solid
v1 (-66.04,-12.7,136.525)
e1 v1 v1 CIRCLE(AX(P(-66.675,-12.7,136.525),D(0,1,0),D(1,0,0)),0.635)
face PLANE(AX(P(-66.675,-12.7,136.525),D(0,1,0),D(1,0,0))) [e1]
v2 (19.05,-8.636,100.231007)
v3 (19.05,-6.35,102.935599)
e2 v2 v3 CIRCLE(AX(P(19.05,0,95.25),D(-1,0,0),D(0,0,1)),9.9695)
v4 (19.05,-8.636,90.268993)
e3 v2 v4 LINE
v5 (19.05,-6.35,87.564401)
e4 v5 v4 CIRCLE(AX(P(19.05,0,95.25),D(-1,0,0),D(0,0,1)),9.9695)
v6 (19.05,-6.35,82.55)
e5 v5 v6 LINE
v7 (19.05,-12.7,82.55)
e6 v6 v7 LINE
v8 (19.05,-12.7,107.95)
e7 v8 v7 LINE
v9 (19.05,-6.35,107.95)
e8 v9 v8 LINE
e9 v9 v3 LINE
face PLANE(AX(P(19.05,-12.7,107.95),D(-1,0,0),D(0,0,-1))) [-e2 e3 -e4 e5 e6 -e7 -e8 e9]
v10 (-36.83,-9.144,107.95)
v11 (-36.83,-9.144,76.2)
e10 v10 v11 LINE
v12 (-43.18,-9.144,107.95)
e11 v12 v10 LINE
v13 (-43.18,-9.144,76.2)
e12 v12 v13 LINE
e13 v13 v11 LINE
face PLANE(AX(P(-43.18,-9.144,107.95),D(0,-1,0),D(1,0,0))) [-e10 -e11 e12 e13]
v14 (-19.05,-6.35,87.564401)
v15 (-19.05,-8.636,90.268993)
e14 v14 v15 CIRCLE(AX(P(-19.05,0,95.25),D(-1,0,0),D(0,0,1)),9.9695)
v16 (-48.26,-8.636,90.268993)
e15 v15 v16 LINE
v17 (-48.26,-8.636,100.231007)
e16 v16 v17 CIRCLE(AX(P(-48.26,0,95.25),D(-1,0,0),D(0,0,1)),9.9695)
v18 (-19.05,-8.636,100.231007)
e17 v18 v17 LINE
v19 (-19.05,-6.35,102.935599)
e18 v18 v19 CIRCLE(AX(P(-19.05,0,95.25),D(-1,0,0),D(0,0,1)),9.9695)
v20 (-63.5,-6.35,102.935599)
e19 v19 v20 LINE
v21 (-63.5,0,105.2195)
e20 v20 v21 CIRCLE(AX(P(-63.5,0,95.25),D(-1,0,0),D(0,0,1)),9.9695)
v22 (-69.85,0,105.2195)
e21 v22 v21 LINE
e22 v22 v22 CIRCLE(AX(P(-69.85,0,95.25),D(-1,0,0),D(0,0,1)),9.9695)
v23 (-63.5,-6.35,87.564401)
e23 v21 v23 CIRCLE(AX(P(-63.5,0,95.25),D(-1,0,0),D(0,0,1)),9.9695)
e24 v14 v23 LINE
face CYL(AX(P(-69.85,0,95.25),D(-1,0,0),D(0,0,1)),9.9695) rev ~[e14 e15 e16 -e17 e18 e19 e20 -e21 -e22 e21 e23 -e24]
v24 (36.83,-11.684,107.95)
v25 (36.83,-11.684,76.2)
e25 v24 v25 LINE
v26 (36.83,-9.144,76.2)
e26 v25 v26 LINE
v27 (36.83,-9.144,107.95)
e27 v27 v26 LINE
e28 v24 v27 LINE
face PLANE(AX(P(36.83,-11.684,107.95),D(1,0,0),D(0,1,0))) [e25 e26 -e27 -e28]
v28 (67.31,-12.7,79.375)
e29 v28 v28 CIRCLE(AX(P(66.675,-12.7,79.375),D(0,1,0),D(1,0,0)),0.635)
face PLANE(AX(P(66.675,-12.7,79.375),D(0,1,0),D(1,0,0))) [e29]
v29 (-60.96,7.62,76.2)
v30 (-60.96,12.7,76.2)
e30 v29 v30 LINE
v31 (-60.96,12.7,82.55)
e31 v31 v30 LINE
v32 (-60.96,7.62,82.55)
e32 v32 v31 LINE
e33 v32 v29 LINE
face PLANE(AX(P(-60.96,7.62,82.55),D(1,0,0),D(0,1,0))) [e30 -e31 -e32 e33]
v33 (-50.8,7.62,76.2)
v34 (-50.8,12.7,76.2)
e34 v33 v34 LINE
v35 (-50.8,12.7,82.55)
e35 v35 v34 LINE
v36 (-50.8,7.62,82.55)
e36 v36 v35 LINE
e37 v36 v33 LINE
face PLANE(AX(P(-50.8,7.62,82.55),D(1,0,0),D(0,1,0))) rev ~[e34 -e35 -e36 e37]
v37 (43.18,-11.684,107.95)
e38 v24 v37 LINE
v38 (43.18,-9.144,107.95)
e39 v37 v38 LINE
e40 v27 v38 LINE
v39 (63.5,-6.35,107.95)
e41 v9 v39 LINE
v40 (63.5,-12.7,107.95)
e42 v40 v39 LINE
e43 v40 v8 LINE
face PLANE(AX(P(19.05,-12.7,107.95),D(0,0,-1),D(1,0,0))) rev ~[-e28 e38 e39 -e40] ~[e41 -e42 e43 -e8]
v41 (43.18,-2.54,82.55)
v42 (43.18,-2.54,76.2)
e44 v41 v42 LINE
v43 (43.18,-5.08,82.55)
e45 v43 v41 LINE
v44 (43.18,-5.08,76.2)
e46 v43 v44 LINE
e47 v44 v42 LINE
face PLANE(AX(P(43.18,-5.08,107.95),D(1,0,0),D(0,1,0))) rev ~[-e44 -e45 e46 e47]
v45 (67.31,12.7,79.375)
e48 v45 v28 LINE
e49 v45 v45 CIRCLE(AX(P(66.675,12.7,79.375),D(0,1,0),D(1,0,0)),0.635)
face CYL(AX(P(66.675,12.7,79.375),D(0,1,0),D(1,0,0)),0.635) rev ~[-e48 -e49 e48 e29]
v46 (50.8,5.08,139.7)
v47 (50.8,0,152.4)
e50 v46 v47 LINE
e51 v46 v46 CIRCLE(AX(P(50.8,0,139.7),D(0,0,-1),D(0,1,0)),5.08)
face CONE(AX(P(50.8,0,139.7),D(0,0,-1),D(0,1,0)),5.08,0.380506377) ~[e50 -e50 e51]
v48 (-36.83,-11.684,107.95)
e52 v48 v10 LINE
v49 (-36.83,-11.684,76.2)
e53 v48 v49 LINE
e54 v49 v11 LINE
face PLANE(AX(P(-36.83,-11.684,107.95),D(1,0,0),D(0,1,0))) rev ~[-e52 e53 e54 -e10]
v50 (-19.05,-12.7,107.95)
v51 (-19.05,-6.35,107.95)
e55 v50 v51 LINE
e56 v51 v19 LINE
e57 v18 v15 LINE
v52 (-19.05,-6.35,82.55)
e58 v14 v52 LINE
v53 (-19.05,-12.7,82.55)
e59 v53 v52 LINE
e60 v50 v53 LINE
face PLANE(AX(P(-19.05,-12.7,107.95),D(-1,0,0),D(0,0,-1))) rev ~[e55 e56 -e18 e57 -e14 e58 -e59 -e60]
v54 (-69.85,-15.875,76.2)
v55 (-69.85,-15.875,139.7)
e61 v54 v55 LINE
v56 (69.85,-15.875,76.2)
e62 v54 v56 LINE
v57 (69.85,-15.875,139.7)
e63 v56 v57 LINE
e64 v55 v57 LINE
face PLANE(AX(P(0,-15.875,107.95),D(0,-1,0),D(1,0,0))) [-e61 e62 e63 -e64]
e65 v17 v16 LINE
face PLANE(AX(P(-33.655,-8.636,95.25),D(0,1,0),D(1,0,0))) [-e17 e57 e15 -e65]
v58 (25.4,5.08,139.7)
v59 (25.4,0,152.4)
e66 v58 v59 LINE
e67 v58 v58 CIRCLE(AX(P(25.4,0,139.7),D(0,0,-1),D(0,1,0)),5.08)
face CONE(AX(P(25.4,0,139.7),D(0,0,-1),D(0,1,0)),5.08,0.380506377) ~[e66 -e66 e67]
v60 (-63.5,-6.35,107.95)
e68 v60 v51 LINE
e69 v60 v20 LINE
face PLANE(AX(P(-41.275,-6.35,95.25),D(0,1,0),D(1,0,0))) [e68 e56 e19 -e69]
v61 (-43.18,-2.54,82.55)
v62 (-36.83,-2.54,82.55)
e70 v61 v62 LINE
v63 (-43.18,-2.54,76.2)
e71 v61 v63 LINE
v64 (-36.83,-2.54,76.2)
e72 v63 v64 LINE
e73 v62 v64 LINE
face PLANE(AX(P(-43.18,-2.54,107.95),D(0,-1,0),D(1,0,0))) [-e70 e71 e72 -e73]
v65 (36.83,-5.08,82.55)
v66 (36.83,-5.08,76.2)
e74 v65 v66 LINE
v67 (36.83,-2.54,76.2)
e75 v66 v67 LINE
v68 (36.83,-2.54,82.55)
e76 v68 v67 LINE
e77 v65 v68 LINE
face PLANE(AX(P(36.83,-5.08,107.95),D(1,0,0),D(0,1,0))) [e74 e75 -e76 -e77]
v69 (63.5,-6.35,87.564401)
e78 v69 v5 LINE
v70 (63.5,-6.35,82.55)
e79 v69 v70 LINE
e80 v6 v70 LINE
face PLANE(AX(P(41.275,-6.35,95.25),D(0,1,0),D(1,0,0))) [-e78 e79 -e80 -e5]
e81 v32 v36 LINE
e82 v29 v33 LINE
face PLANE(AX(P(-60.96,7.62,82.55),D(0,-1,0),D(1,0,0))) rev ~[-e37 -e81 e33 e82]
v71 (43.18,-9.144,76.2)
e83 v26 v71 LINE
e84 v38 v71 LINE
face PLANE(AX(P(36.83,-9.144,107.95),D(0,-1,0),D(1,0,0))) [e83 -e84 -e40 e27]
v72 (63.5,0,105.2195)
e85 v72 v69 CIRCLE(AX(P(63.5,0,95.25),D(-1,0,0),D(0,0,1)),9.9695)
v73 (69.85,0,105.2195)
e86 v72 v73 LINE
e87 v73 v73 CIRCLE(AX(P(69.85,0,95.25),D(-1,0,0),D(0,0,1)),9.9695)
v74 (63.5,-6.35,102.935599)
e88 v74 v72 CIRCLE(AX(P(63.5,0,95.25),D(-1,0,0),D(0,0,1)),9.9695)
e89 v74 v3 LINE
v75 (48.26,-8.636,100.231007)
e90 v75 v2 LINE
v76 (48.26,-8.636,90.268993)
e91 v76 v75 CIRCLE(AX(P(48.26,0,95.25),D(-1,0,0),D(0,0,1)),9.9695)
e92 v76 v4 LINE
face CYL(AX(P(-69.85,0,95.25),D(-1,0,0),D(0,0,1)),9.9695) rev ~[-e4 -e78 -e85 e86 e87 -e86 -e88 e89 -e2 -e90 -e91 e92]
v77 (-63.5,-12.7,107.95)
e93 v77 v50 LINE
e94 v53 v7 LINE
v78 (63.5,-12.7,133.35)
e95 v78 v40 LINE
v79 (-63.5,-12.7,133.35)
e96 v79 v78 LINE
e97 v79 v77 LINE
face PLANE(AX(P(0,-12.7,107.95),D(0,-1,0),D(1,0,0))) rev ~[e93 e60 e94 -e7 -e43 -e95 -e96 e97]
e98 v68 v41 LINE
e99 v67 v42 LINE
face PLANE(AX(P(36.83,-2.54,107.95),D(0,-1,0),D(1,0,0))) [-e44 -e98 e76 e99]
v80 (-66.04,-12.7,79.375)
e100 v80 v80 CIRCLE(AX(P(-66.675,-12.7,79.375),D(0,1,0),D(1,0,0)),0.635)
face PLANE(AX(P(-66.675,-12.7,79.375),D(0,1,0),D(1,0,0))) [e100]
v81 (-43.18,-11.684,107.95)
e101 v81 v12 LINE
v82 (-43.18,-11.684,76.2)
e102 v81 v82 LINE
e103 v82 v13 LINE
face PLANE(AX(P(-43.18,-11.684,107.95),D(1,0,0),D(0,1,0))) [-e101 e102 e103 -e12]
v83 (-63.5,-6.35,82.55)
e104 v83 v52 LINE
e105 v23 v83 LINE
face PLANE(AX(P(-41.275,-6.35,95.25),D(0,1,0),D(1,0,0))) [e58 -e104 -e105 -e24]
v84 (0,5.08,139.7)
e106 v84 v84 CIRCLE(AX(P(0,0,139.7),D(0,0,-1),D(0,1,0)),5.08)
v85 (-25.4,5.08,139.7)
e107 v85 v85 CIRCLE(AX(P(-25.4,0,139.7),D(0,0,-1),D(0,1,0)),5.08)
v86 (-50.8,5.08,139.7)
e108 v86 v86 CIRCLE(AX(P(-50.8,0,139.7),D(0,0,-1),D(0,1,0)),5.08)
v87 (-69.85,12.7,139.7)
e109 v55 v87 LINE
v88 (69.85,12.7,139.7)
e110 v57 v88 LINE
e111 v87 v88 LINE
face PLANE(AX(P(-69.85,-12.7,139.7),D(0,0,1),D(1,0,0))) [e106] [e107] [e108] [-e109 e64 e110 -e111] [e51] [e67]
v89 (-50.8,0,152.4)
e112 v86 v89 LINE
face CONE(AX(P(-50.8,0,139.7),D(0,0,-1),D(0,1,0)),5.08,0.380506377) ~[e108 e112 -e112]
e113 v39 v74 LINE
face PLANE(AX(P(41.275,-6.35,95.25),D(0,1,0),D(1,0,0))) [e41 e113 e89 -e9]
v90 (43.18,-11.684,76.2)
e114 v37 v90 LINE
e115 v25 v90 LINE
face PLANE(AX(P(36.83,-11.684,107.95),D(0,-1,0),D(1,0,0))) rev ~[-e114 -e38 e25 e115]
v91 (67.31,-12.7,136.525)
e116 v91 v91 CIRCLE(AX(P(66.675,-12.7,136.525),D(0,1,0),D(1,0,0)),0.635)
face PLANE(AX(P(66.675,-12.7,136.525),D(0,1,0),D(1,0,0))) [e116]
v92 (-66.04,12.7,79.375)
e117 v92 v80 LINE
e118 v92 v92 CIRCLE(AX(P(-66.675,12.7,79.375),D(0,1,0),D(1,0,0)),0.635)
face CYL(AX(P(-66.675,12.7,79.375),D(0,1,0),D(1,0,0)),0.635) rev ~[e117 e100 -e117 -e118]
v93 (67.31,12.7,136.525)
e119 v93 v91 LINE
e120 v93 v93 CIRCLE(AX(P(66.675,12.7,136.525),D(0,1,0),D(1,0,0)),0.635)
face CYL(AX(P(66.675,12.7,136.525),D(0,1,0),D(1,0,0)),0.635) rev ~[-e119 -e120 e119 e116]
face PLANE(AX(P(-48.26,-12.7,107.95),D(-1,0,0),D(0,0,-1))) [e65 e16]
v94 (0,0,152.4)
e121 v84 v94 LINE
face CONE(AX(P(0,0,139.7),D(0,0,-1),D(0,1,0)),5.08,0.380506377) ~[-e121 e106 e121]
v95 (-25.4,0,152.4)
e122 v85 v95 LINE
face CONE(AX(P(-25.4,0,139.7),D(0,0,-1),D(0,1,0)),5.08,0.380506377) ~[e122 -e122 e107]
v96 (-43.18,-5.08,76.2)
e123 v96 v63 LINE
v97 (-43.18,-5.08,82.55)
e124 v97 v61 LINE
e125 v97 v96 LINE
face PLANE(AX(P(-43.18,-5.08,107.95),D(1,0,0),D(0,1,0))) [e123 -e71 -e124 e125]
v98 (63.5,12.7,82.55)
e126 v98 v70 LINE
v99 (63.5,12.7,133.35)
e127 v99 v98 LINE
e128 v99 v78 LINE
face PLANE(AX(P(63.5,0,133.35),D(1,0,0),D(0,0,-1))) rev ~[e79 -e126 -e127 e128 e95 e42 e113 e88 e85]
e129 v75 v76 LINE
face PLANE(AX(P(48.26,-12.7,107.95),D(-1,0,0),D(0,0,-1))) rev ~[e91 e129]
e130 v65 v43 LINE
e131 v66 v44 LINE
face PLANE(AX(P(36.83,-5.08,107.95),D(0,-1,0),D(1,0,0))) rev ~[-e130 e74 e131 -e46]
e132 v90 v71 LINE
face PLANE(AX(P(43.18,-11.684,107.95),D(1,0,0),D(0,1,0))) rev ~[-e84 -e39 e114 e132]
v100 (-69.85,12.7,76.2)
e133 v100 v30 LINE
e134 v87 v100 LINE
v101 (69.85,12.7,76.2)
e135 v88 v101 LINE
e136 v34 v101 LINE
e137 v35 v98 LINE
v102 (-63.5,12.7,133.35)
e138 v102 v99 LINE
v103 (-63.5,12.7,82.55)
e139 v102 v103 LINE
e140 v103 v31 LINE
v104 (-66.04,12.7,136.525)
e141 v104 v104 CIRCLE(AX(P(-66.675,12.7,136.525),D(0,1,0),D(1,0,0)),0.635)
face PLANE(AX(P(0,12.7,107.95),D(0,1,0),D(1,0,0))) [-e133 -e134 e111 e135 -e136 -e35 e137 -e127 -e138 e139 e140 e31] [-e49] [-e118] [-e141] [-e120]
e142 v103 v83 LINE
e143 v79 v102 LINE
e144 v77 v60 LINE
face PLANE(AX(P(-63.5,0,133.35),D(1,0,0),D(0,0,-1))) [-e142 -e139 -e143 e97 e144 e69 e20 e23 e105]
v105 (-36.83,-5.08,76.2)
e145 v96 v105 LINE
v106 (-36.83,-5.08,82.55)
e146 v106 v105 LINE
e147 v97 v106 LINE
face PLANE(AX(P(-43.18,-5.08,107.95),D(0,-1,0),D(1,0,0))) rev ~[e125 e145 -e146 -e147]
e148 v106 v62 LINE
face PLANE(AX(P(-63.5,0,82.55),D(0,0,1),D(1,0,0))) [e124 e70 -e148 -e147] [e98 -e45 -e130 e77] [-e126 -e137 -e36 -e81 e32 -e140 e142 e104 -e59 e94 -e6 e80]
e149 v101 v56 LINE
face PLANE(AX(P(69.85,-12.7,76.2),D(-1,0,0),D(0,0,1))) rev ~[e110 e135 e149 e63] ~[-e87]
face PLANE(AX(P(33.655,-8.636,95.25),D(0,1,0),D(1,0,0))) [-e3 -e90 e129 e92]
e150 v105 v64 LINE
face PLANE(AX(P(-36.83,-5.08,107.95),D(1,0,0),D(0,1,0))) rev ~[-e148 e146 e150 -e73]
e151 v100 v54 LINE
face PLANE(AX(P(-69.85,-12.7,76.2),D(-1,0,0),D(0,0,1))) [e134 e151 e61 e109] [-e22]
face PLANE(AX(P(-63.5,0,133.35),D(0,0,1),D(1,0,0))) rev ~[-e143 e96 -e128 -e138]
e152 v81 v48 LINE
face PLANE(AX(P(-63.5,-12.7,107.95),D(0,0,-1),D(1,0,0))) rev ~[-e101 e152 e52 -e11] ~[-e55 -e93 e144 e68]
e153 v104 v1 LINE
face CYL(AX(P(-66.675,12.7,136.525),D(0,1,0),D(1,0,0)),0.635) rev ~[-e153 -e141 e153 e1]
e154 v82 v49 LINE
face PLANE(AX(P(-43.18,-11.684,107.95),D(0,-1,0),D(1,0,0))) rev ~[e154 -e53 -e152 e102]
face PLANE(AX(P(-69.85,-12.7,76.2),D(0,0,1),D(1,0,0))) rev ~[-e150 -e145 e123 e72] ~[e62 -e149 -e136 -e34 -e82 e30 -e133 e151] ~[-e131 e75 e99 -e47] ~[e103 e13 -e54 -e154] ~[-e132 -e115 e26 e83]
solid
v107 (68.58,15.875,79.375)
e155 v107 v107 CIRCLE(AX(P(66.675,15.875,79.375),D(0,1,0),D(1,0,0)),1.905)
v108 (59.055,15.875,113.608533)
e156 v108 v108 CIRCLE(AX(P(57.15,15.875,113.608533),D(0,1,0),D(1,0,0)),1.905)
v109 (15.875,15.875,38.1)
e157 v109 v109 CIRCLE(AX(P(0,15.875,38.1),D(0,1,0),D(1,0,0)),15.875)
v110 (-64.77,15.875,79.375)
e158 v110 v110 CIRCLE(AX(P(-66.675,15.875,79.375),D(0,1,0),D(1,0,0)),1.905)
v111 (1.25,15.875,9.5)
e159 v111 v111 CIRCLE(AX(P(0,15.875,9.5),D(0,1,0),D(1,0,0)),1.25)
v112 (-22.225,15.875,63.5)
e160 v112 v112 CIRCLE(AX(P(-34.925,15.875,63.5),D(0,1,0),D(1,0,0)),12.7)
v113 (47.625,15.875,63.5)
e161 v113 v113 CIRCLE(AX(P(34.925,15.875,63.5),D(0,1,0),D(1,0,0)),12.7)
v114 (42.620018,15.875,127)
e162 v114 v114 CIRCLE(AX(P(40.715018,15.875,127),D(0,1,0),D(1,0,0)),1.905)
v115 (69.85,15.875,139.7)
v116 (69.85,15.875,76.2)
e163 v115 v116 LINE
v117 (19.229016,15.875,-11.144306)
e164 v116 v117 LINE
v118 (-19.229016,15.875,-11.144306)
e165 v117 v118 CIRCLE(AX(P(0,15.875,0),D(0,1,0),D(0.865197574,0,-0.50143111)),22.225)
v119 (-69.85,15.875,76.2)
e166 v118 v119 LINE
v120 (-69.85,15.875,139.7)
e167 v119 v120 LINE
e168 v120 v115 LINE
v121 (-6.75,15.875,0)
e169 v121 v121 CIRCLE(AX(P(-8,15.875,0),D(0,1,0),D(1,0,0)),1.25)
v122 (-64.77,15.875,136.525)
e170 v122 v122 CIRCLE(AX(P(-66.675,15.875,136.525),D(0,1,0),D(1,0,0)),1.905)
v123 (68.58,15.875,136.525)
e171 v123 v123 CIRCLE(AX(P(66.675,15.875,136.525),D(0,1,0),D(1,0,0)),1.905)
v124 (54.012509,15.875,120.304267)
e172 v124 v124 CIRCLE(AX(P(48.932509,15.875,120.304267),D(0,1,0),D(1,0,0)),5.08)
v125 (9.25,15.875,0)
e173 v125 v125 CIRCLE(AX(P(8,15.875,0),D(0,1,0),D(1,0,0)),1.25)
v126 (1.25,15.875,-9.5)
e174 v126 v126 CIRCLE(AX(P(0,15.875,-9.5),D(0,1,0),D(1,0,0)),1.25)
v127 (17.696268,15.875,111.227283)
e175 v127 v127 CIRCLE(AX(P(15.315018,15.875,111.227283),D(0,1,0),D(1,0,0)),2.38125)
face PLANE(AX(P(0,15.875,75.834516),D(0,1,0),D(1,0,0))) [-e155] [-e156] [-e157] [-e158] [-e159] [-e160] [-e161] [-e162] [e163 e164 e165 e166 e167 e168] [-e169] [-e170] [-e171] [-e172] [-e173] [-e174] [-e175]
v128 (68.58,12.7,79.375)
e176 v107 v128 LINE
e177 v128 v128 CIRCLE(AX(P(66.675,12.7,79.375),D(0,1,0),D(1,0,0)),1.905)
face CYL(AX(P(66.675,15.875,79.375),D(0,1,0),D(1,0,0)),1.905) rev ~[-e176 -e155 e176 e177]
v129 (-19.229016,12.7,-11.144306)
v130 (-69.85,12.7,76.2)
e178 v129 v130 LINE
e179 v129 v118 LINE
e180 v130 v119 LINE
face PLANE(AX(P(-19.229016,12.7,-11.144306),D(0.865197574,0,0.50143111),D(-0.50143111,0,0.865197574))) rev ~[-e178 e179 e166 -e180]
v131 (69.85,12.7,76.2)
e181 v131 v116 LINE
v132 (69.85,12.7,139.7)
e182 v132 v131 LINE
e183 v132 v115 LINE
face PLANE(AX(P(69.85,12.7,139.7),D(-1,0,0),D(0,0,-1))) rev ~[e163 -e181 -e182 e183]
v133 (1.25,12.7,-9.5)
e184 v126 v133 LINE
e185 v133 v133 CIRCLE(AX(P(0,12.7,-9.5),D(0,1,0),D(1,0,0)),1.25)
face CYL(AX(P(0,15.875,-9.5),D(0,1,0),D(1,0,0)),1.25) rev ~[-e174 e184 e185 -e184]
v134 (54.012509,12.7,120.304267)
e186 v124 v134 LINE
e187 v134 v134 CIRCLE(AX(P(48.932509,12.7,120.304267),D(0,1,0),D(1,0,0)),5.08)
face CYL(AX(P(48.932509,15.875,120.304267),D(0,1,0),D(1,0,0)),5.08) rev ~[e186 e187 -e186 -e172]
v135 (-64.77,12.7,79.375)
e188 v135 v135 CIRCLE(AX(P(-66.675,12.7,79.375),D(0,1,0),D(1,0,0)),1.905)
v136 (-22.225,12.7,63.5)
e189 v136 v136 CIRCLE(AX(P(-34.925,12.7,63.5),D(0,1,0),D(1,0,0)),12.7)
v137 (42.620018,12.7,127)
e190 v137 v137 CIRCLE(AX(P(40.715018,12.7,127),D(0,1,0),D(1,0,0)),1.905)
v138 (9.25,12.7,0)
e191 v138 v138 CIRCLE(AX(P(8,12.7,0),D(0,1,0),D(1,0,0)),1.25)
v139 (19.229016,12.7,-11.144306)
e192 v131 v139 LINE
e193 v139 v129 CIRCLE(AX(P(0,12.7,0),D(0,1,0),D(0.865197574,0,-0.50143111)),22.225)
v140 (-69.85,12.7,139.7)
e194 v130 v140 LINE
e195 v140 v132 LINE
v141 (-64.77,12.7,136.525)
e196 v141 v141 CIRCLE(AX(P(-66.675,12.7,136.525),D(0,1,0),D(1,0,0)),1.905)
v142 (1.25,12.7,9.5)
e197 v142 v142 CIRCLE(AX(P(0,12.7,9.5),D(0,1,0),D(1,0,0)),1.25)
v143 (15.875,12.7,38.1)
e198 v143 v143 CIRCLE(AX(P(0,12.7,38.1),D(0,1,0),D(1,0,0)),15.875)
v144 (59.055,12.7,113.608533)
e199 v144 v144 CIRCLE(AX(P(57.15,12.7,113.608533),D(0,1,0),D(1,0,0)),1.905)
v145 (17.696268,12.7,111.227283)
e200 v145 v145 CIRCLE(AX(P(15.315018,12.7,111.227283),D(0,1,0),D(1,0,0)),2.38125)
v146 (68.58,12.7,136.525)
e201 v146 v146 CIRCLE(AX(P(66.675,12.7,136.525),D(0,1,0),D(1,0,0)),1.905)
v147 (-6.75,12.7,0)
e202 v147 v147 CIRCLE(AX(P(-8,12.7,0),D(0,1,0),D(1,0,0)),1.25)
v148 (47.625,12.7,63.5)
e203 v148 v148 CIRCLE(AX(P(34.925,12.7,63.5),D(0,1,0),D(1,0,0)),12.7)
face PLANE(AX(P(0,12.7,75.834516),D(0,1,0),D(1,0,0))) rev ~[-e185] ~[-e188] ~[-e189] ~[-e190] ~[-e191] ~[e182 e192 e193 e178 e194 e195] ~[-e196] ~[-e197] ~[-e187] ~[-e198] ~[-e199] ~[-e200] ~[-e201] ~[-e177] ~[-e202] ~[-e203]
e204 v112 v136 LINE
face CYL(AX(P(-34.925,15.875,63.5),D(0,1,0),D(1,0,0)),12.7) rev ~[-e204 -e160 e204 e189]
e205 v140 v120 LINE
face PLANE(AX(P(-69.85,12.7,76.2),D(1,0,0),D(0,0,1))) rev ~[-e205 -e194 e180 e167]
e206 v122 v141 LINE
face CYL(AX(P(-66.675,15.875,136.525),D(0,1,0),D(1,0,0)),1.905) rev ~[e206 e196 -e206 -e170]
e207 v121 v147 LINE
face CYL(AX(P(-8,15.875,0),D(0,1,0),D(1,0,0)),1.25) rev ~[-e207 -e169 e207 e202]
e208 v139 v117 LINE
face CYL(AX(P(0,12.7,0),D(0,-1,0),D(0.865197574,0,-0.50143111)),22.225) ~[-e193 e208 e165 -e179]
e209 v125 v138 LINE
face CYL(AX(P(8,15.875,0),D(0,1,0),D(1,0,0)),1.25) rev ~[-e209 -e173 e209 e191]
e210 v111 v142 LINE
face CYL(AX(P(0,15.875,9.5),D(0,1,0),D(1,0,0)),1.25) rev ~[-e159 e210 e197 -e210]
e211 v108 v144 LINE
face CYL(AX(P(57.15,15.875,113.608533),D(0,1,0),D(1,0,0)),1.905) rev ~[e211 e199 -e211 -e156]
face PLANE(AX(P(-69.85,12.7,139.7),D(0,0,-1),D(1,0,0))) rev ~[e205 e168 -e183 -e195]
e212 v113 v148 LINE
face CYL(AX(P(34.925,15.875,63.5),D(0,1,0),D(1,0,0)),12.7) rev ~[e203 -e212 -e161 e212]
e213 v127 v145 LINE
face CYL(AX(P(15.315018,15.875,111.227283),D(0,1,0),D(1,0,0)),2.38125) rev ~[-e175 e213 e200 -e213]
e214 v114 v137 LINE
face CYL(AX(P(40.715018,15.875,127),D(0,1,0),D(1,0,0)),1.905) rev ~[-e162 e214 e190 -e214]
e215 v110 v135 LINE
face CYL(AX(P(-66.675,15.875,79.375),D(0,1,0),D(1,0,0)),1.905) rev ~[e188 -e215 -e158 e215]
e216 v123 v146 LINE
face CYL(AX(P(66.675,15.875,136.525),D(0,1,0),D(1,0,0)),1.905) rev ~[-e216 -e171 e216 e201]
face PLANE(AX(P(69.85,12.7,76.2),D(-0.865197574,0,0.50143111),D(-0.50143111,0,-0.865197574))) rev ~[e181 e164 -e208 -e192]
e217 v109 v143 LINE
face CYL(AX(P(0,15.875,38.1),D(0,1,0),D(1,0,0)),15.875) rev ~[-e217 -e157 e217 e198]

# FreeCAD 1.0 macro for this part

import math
import FreeCAD as App
import Part
import Sketcher
from FreeCAD import Vector
Q = App.Units.Quantity

doc = App.newDocument("Part")
params = doc.addObject("Spreadsheet::Sheet", "Params")
for row, (alias, value) in enumerate([
    ("sketch1_width", "5 in"),
    ("sketch1_height", "2 in"),
    ("sketch1_width2", "5.5 in"),
    ("sketch1_height2", "2.5 in"),
    ("pad1_length", "0.5 in"),
    ("pad1_length2", "0.5 in"),
    ("sketch2_width", "5.5 in"),
    ("sketch2_height", "2.5 in"),
    ("pad2_length", "0.125 in"),
    ("sketch3_height", "1 in"),
    ("sketch3_width", "1.75 in"),
    ("pad3_length", "0.25 in"),
    ("sketch4_diameter", "0.785 in"),
    ("sketch5_width", "0.2 in"),
    ("sketch5_height", "0.5 in"),
    ("revolution_angle", "360 deg"),
    ("linearpattern_pitch", "1 in"),
    ("linearpattern2_pitch", "1 in"),
    ("sketch6_height", "1 in"),
    ("sketch6_width", "1.15 in"),
    ("pad4_length", "0.16 in"),
    ("sketch7_height", "0.1 in"),
    ("sketch7_width", "0.25 in"),
    ("pocket2_length", "1.25 in"),
    ("sketch8_width", "0.4 in"),
    ("sketch8_height", "0.2 in"),
    ("pocket3_length", "0.25 in"),
    ("sketch9_diameter", "0.05 in"),
    ("pocket4_length", "1 in"),
    ("sketch10_width", "5.5 in"),
    ("sketch10_height", "2.5 in"),
    ("sketch10_radius", "0.875 in"),
    ("pad5_length", "0.125 in"),
    ("sketch11_diameter", "0.15 in"),
    ("pocket5_length", "0.125 in"),
    ("sketch12_diameter", "0.4 in"),
    ("sketch12_diameter2", "0.15 in"),
    ("sketch12_diameter3", "0.1875 in"),
    ("pocket6_length", "0.125 in"),
    ("pocket7_length", "0.125 in"),
    ("sketch14_diameter", "1 in"),
    ("sketch14_diameter2", "1.25 in"),
], start=1):
    params.set(f"A{row}", alias)
    params.set(f"B{row}", "=" + value)
    params.setAlias(f"B{row}", alias)

body = doc.addObject("PartDesign::Body", "Body")

# Sketch on XZ plane
sketch1 = body.newObject("Sketcher::SketchObject", "Sketch")
sketch1.AttachmentSupport = (doc.getObject("XZ_Plane"), [""])
sketch1.MapMode = "FlatFace"
sketch1.addGeometry([
    Part.LineSegment(Vector(-70, 76, 0), Vector(-70, 140, 0)),  # 0
    Part.LineSegment(Vector(-70, 140, 0), Vector(70, 140, 0)),  # 1
    Part.LineSegment(Vector(70, 140, 0), Vector(70, 76, 0)),  # 2
    Part.LineSegment(Vector(70, 76, 0), Vector(-70, 76, 0)),  # 3
    Part.LineSegment(Vector(64, 133, 0), Vector(-64, 133, 0)),  # 4
    Part.LineSegment(Vector(-64, 133, 0), Vector(-64, 83, 0)),  # 5
    Part.LineSegment(Vector(-64, 83, 0), Vector(64, 83, 0)),  # 6
    Part.LineSegment(Vector(64, 83, 0), Vector(64, 133, 0)),  # 7
], False)
sketch1.addConstraint([
    Sketcher.Constraint("Coincident", 0, 2, 1, 1),
    Sketcher.Constraint("Coincident", 1, 2, 2, 1),
    Sketcher.Constraint("Coincident", 2, 2, 3, 1),
    Sketcher.Constraint("Coincident", 3, 2, 0, 1),
    Sketcher.Constraint("Coincident", 4, 2, 5, 1),
    Sketcher.Constraint("Coincident", 5, 2, 6, 1),
    Sketcher.Constraint("Coincident", 6, 2, 7, 1),
    Sketcher.Constraint("Coincident", 7, 2, 4, 1),
    Sketcher.Constraint("Vertical", 0),
    Sketcher.Constraint("Horizontal", 1),
    Sketcher.Constraint("Vertical", 2),
    Sketcher.Constraint("Horizontal", 3),
    Sketcher.Constraint("Horizontal", 4),
    Sketcher.Constraint("Vertical", 5),
    Sketcher.Constraint("Horizontal", 6),
    Sketcher.Constraint("Vertical", 7),
    Sketcher.Constraint("DistanceX", 4, 2, 4, 1, Q("5 in")),
    Sketcher.Constraint("DistanceY", 5, 2, 5, 1, Q("2 in")),
    Sketcher.Constraint("DistanceX", 1, 1, 1, 2, Q("5.5 in")),
    Sketcher.Constraint("DistanceY", 0, 1, 0, 2, Q("2.5 in")),
    Sketcher.Constraint("DistanceY", -1, 1, 2, 2, Q("3 in")),
    Sketcher.Constraint("DistanceX", 4, 2, -1, 1, Q("2.5 in")),
    Sketcher.Constraint("DistanceX", 0, 2, -1, 1, Q("2.75 in")),
    Sketcher.Constraint("DistanceY", -1, 1, 4, 2, Q("5.25 in")),
])
sketch1.setExpression("Constraints[16]", "Params.sketch1_width")
sketch1.setExpression("Constraints[17]", "Params.sketch1_height")
sketch1.setExpression("Constraints[18]", "Params.sketch1_width2")
sketch1.setExpression("Constraints[19]", "Params.sketch1_height2")
pad1 = body.newObject("PartDesign::Pad", "Pad")
pad1.Profile = sketch1
pad1.Type = "TwoLengths"
pad1.setExpression("Length", "Params.pad1_length")
pad1.setExpression("Length2", "Params.pad1_length2")
pad1.Reversed = True

# Sketch on XZ plane
sketch2 = body.newObject("Sketcher::SketchObject", "Sketch001")
sketch2.AttachmentSupport = (doc.getObject("XZ_Plane"), [""])
sketch2.MapMode = "FlatFace"
sketch2.AttachmentOffset = App.Placement(Vector(0, 0, 0.5 * 25.4), App.Rotation())
sketch2.addGeometry([
    Part.LineSegment(Vector(-70, 140, 0), Vector(-70, 76, 0)),
    Part.LineSegment(Vector(-70, 76, 0), Vector(70, 76, 0)),
    Part.LineSegment(Vector(70, 76, 0), Vector(70, 140, 0)),
    Part.LineSegment(Vector(70, 140, 0), Vector(-70, 140, 0)),
], False)
sketch2.addConstraint([
    Sketcher.Constraint("Coincident", 0, 2, 1, 1),
    Sketcher.Constraint("Coincident", 1, 2, 2, 1),
    Sketcher.Constraint("Coincident", 2, 2, 3, 1),
    Sketcher.Constraint("Coincident", 3, 2, 0, 1),
    Sketcher.Constraint("Vertical", 0),
    Sketcher.Constraint("Horizontal", 1),
    Sketcher.Constraint("Vertical", 2),
    Sketcher.Constraint("Horizontal", 3),
    Sketcher.Constraint("DistanceX", 1, 1, 1, 2, Q("5.5 in")),
    Sketcher.Constraint("DistanceY", 0, 2, 0, 1, Q("2.5 in")),
    Sketcher.Constraint("DistanceY", -1, 1, 0, 2, Q("3 in")),
    Sketcher.Constraint("DistanceX", 0, 2, -1, 1, Q("2.75 in")),
])
sketch2.setExpression("Constraints[8]", "Params.sketch2_width")
sketch2.setExpression("Constraints[9]", "Params.sketch2_height")
pad2 = body.newObject("PartDesign::Pad", "Pad001")
pad2.Profile = sketch2
pad2.setExpression("Length", "Params.pad2_length")

# Sketch on XZ plane
sketch3 = body.newObject("Sketcher::SketchObject", "Sketch002")
sketch3.AttachmentSupport = (doc.getObject("XZ_Plane"), [""])
sketch3.MapMode = "FlatFace"
sketch3.AttachmentOffset = App.Placement(Vector(0, 0, 0.5 * 25.4), App.Rotation())
sketch3.addGeometry([
    Part.LineSegment(Vector(-64, 83, 0), Vector(-64, 108, 0)),  # 0
    Part.LineSegment(Vector(-64, 108, 0), Vector(-19, 108, 0)),  # 1
    Part.LineSegment(Vector(-19, 108, 0), Vector(-19, 83, 0)),  # 2
    Part.LineSegment(Vector(-19, 83, 0), Vector(-64, 83, 0)),  # 3
    Part.LineSegment(Vector(19, 83, 0), Vector(19, 108, 0)),  # 4
    Part.LineSegment(Vector(19, 108, 0), Vector(64, 108, 0)),  # 5
    Part.LineSegment(Vector(64, 108, 0), Vector(64, 83, 0)),  # 6
    Part.LineSegment(Vector(64, 83, 0), Vector(19, 83, 0)),  # 7
], False)
sketch3.addConstraint([
    Sketcher.Constraint("Coincident", 0, 2, 1, 1),
    Sketcher.Constraint("Coincident", 1, 2, 2, 1),
    Sketcher.Constraint("Coincident", 2, 2, 3, 1),
    Sketcher.Constraint("Coincident", 3, 2, 0, 1),
    Sketcher.Constraint("Coincident", 4, 2, 5, 1),
    Sketcher.Constraint("Coincident", 5, 2, 6, 1),
    Sketcher.Constraint("Coincident", 6, 2, 7, 1),
    Sketcher.Constraint("Coincident", 7, 2, 4, 1),
    Sketcher.Constraint("Vertical", 0),
    Sketcher.Constraint("Horizontal", 1),
    Sketcher.Constraint("Vertical", 2),
    Sketcher.Constraint("Horizontal", 3),
    Sketcher.Constraint("Vertical", 4),
    Sketcher.Constraint("Horizontal", 5),
    Sketcher.Constraint("Vertical", 6),
    Sketcher.Constraint("Horizontal", 7),
    Sketcher.Constraint("Symmetric", 1, 2, 4, 2, -2),
    Sketcher.Constraint("Symmetric", 3, 2, 6, 2, -2),
    Sketcher.Constraint("DistanceY", 0, 1, 0, 2, Q("1 in")),
    Sketcher.Constraint("DistanceX", 0, 2, 5, 2, Q("5 in")),
    Sketcher.Constraint("DistanceX", 1, 1, 1, 2, Q("1.75 in")),
    Sketcher.Constraint("DistanceY", -1, 1, 0, 2, Q("4.25 in")),
])
sketch3.setExpression("Constraints[18]", "Params.sketch3_height")
sketch3.setExpression("Constraints[20]", "Params.sketch3_width")
pad3 = body.newObject("PartDesign::Pad", "Pad002")
pad3.Profile = sketch3
pad3.setExpression("Length", "Params.pad3_length")
pad3.Reversed = True

# Sketch on YZ plane
sketch4 = body.newObject("Sketcher::SketchObject", "Sketch003")
sketch4.AttachmentSupport = (doc.getObject("YZ_Plane"), [""])
sketch4.MapMode = "FlatFace"
sketch4.AttachmentOffset = App.Placement(Vector(0, 0, -2.75 * 25.4), App.Rotation())
sketch4.addGeometry(Part.Circle(Vector(0, 95, 0), Vector(0, 0, 1), 10), False)
sketch4.addConstraint([
    Sketcher.Constraint("PointOnObject", 0, 3, -2),
    Sketcher.Constraint("Diameter", 0, Q("0.785 in")),
    Sketcher.Constraint("DistanceY", -1, 1, 0, 3, Q("3.75 in")),
])
sketch4.setExpression("Constraints[1]", "Params.sketch4_diameter")
pocket1 = body.newObject("PartDesign::Pocket", "Pocket")
pocket1.Profile = sketch4
pocket1.Type = "ThroughAll"
pocket1.Reversed = True

# Sketch on YZ plane
sketch5 = body.newObject("Sketcher::SketchObject", "Sketch004")
sketch5.AttachmentSupport = (doc.getObject("YZ_Plane"), [""])
sketch5.MapMode = "FlatFace"
sketch5.addGeometry([
    Part.LineSegment(Vector(0, 140, 0), Vector(5, 140, 0)),
    Part.LineSegment(Vector(5, 140, 0), Vector(0, 152, 0)),
    Part.LineSegment(Vector(0, 152, 0), Vector(0, 140, 0)),
], False)
sketch5.addConstraint([
    Sketcher.Constraint("Coincident", 0, 2, 1, 1),
    Sketcher.Constraint("Coincident", 1, 2, 2, 1),
    Sketcher.Constraint("Coincident", 2, 2, 0, 1),
    Sketcher.Constraint("Horizontal", 0),
    Sketcher.Constraint("Vertical", 2),
    Sketcher.Constraint("PointOnObject", 1, 2, -2),
    Sketcher.Constraint("DistanceX", 0, 1, 0, 2, Q("0.2 in")),
    Sketcher.Constraint("DistanceY", 2, 2, 2, 1, Q("0.5 in")),
    Sketcher.Constraint("DistanceY", -1, 1, 1, 2, Q("6 in")),
])
sketch5.setExpression("Constraints[6]", "Params.sketch5_width")
sketch5.setExpression("Constraints[7]", "Params.sketch5_height")
revolution = body.newObject("PartDesign::Revolution", "Revolution")
revolution.Profile = sketch5
revolution.ReferenceAxis = (sketch5, ["V_Axis"])
revolution.setExpression("Angle", "Params.revolution_angle")
doc.recompute()

linearpattern = body.newObject("PartDesign::LinearPattern", "LinearPattern")
linearpattern.Originals = [revolution]
linearpattern.Direction = (doc.getObject("X_Axis"), [""])
linearpattern.Mode = "offset"
linearpattern.setExpression("Offset", "Params.linearpattern_pitch")
linearpattern.Occurrences = 3
linearpattern.Reversed = True
body.Tip = linearpattern
doc.recompute()

linearpattern2 = body.newObject("PartDesign::LinearPattern", "LinearPattern001")
linearpattern2.Originals = [revolution]
linearpattern2.Direction = (doc.getObject("X_Axis"), [""])
linearpattern2.Mode = "offset"
linearpattern2.setExpression("Offset", "Params.linearpattern2_pitch")
linearpattern2.Occurrences = 3
body.Tip = linearpattern2

# Sketch on XZ plane
sketch6 = body.newObject("Sketcher::SketchObject", "Sketch005")
sketch6.AttachmentSupport = (doc.getObject("XZ_Plane"), [""])
sketch6.MapMode = "FlatFace"
sketch6.AttachmentOffset = App.Placement(Vector(0, 0, 0.5 * 25.4), App.Rotation())
sketch6.addGeometry([
    Part.LineSegment(Vector(-48, 83, 0), Vector(-48, 108, 0)),  # 0
    Part.LineSegment(Vector(-48, 108, 0), Vector(-19, 108, 0)),  # 1
    Part.LineSegment(Vector(-19, 108, 0), Vector(-19, 83, 0)),  # 2
    Part.LineSegment(Vector(-19, 83, 0), Vector(-48, 83, 0)),  # 3
    Part.LineSegment(Vector(19, 83, 0), Vector(19, 108, 0)),  # 4
    Part.LineSegment(Vector(19, 108, 0), Vector(48, 108, 0)),  # 5
    Part.LineSegment(Vector(48, 108, 0), Vector(48, 83, 0)),  # 6
    Part.LineSegment(Vector(48, 83, 0), Vector(19, 83, 0)),  # 7
], False)
sketch6.addConstraint([
    Sketcher.Constraint("Coincident", 0, 2, 1, 1),
    Sketcher.Constraint("Coincident", 1, 2, 2, 1),
    Sketcher.Constraint("Coincident", 2, 2, 3, 1),
    Sketcher.Constraint("Coincident", 3, 2, 0, 1),
    Sketcher.Constraint("Coincident", 4, 2, 5, 1),
    Sketcher.Constraint("Coincident", 5, 2, 6, 1),
    Sketcher.Constraint("Coincident", 6, 2, 7, 1),
    Sketcher.Constraint("Coincident", 7, 2, 4, 1),
    Sketcher.Constraint("Vertical", 0),
    Sketcher.Constraint("Horizontal", 1),
    Sketcher.Constraint("Vertical", 2),
    Sketcher.Constraint("Horizontal", 3),
    Sketcher.Constraint("Vertical", 4),
    Sketcher.Constraint("Horizontal", 5),
    Sketcher.Constraint("Vertical", 6),
    Sketcher.Constraint("Horizontal", 7),
    Sketcher.Constraint("Symmetric", 1, 2, 4, 2, -2),
    Sketcher.Constraint("Symmetric", 3, 2, 6, 2, -2),
    Sketcher.Constraint("DistanceY", 0, 1, 0, 2, Q("1 in")),
    Sketcher.Constraint("DistanceX", 1, 1, 1, 2, Q("1.15 in")),
    Sketcher.Constraint("DistanceX", 0, 2, -1, 1, Q("1.9 in")),
    Sketcher.Constraint("DistanceY", -1, 1, 0, 2, Q("4.25 in")),
])
sketch6.setExpression("Constraints[18]", "Params.sketch6_height")
sketch6.setExpression("Constraints[19]", "Params.sketch6_width")
pad4 = body.newObject("PartDesign::Pad", "Pad003")
pad4.Profile = sketch6
pad4.setExpression("Length", "Params.pad4_length")
pad4.Reversed = True

# Sketch on XY plane
sketch7 = body.newObject("Sketcher::SketchObject", "Sketch006")
sketch7.AttachmentSupport = (doc.getObject("XY_Plane"), [""])
sketch7.MapMode = "FlatFace"
sketch7.AttachmentOffset = App.Placement(Vector(0, 0, 4.25 * 25.4), App.Rotation())
sketch7.addGeometry([
    Part.LineSegment(Vector(-43.2, -9.1, 0), Vector(-43.2, -11.7, 0)),  # 0
    Part.LineSegment(Vector(-43.2, -11.7, 0), Vector(-36.8, -11.7, 0)),  # 1
    Part.LineSegment(Vector(-36.8, -11.7, 0), Vector(-36.8, -9.1, 0)),  # 2
    Part.LineSegment(Vector(-36.8, -9.1, 0), Vector(-43.2, -9.1, 0)),  # 3
    Part.LineSegment(Vector(-43.2, -2.5, 0), Vector(-43.2, -5.1, 0)),  # 4
    Part.LineSegment(Vector(-43.2, -5.1, 0), Vector(-36.8, -5.1, 0)),  # 5
    Part.LineSegment(Vector(-36.8, -5.1, 0), Vector(-36.8, -2.5, 0)),  # 6
    Part.LineSegment(Vector(-36.8, -2.5, 0), Vector(-43.2, -2.5, 0)),  # 7
    Part.LineSegment(Vector(36.8, -9.1, 0), Vector(36.8, -11.7, 0)),  # 8
    Part.LineSegment(Vector(36.8, -11.7, 0), Vector(43.2, -11.7, 0)),  # 9
    Part.LineSegment(Vector(43.2, -11.7, 0), Vector(43.2, -9.1, 0)),  # 10
    Part.LineSegment(Vector(43.2, -9.1, 0), Vector(36.8, -9.1, 0)),  # 11
    Part.LineSegment(Vector(36.8, -2.5, 0), Vector(36.8, -5.1, 0)),  # 12
    Part.LineSegment(Vector(36.8, -5.1, 0), Vector(43.2, -5.1, 0)),  # 13
    Part.LineSegment(Vector(43.2, -5.1, 0), Vector(43.2, -2.5, 0)),  # 14
    Part.LineSegment(Vector(43.2, -2.5, 0), Vector(36.8, -2.5, 0)),  # 15
], False)
sketch7.addConstraint([
    Sketcher.Constraint("Coincident", 0, 2, 1, 1),
    Sketcher.Constraint("Coincident", 1, 2, 2, 1),
    Sketcher.Constraint("Coincident", 2, 2, 3, 1),
    Sketcher.Constraint("Coincident", 3, 2, 0, 1),
    Sketcher.Constraint("Coincident", 4, 2, 5, 1),
    Sketcher.Constraint("Coincident", 5, 2, 6, 1),
    Sketcher.Constraint("Coincident", 6, 2, 7, 1),
    Sketcher.Constraint("Coincident", 7, 2, 4, 1),
    Sketcher.Constraint("Coincident", 8, 2, 9, 1),
    Sketcher.Constraint("Coincident", 9, 2, 10, 1),
    Sketcher.Constraint("Coincident", 10, 2, 11, 1),
    Sketcher.Constraint("Coincident", 11, 2, 8, 1),
    Sketcher.Constraint("Coincident", 12, 2, 13, 1),
    Sketcher.Constraint("Coincident", 13, 2, 14, 1),
    Sketcher.Constraint("Coincident", 14, 2, 15, 1),
    Sketcher.Constraint("Coincident", 15, 2, 12, 1),
    Sketcher.Constraint("Vertical", 0),
    Sketcher.Constraint("Horizontal", 1),
    Sketcher.Constraint("Vertical", 2),
    Sketcher.Constraint("Horizontal", 3),
    Sketcher.Constraint("Vertical", 4),
    Sketcher.Constraint("Horizontal", 5),
    Sketcher.Constraint("Vertical", 6),
    Sketcher.Constraint("Horizontal", 7),
    Sketcher.Constraint("Vertical", 8),
    Sketcher.Constraint("Horizontal", 9),
    Sketcher.Constraint("Vertical", 10),
    Sketcher.Constraint("Horizontal", 11),
    Sketcher.Constraint("Vertical", 12),
    Sketcher.Constraint("Horizontal", 13),
    Sketcher.Constraint("Vertical", 14),
    Sketcher.Constraint("Horizontal", 15),
    Sketcher.Constraint("Symmetric", 1, 2, 8, 2, -2),
    Sketcher.Constraint("Symmetric", 3, 2, 10, 2, -2),
    Sketcher.Constraint("Symmetric", 5, 2, 12, 2, -2),
    Sketcher.Constraint("Symmetric", 7, 2, 14, 2, -2),
    Sketcher.Constraint("Vertical", 3, 2, 4, 2),
    Sketcher.Constraint("Vertical", 2, 2, 5, 2),
    Sketcher.Constraint("Equal", 2, 4),
    Sketcher.Constraint("DistanceY", 0, 2, 0, 1, Q("0.1 in")),
    Sketcher.Constraint("DistanceX", 1, 1, 1, 2, Q("0.25 in")),
    Sketcher.Constraint("DistanceX", 0, 2, -1, 1, Q("1.7 in")),
    Sketcher.Constraint("DistanceY", 4, 2, -1, 1, Q("0.2 in")),
    Sketcher.Constraint("DistanceY", 0, 2, -1, 1, Q("0.46 in")),
])
sketch7.setExpression("Constraints[39]", "Params.sketch7_height")
sketch7.setExpression("Constraints[40]", "Params.sketch7_width")
pocket2 = body.newObject("PartDesign::Pocket", "Pocket001")
pocket2.Profile = sketch7
pocket2.setExpression("Length", "Params.pocket2_length")

# Sketch on XY plane
sketch8 = body.newObject("Sketcher::SketchObject", "Sketch007")
sketch8.AttachmentSupport = (doc.getObject("XY_Plane"), [""])
sketch8.MapMode = "FlatFace"
sketch8.AttachmentOffset = App.Placement(Vector(0, 0, 3.25 * 25.4), App.Rotation())
sketch8.addGeometry([
    Part.LineSegment(Vector(-61, 13, 0), Vector(-61, 8, 0)),
    Part.LineSegment(Vector(-61, 8, 0), Vector(-51, 8, 0)),
    Part.LineSegment(Vector(-51, 8, 0), Vector(-51, 13, 0)),
    Part.LineSegment(Vector(-51, 13, 0), Vector(-61, 13, 0)),
], False)
sketch8.addConstraint([
    Sketcher.Constraint("Coincident", 0, 2, 1, 1),
    Sketcher.Constraint("Coincident", 1, 2, 2, 1),
    Sketcher.Constraint("Coincident", 2, 2, 3, 1),
    Sketcher.Constraint("Coincident", 3, 2, 0, 1),
    Sketcher.Constraint("Vertical", 0),
    Sketcher.Constraint("Horizontal", 1),
    Sketcher.Constraint("Vertical", 2),
    Sketcher.Constraint("Horizontal", 3),
    Sketcher.Constraint("DistanceX", 1, 1, 1, 2, Q("0.4 in")),
    Sketcher.Constraint("DistanceY", 0, 2, 0, 1, Q("0.2 in")),
    Sketcher.Constraint("DistanceX", 1, 2, -1, 1, Q("2 in")),
    Sketcher.Constraint("DistanceY", -1, 1, 0, 2, Q("0.3 in")),
])
sketch8.setExpression("Constraints[8]", "Params.sketch8_width")
sketch8.setExpression("Constraints[9]", "Params.sketch8_height")
pocket3 = body.newObject("PartDesign::Pocket", "Pocket002")
pocket3.Profile = sketch8
pocket3.setExpression("Length", "Params.pocket3_length")

# Sketch on XZ plane
sketch9 = body.newObject("Sketcher::SketchObject", "Sketch008")
sketch9.AttachmentSupport = (doc.getObject("XZ_Plane"), [""])
sketch9.MapMode = "FlatFace"
sketch9.AttachmentOffset = App.Placement(Vector(0, 0, -0.5 * 25.4), App.Rotation())
sketch9.addGeometry([
    Part.Circle(Vector(-66.7, 79.4, 0), Vector(0, 0, 1), 0.6),
    Part.Circle(Vector(66.7, 79.4, 0), Vector(0, 0, 1), 0.6),
    Part.Circle(Vector(-66.7, 136.5, 0), Vector(0, 0, 1), 0.6),
    Part.Circle(Vector(66.7, 136.5, 0), Vector(0, 0, 1), 0.6),
], False)
sketch9.addConstraint([
    Sketcher.Constraint("Equal", 0, 1),
    Sketcher.Constraint("Equal", 1, 2),
    Sketcher.Constraint("Equal", 2, 3),
    Sketcher.Constraint("Symmetric", 0, 3, 1, 3, -2),
    Sketcher.Constraint("Symmetric", 2, 3, 3, 3, -2),
    Sketcher.Constraint("Vertical", 0, 3, 2, 3),
    Sketcher.Constraint("Diameter", 0, Q("0.05 in")),
    Sketcher.Constraint("DistanceX", 0, 3, 1, 3, Q("5.25 in")),
    Sketcher.Constraint("DistanceY", 0, 3, 2, 3, Q("2.25 in")),
    Sketcher.Constraint("DistanceY", -1, 1, 0, 3, Q("3.125 in")),
])
sketch9.setExpression("Constraints[6]", "Params.sketch9_diameter")
pocket4 = body.newObject("PartDesign::Pocket", "Pocket003")
pocket4.Profile = sketch9
pocket4.setExpression("Length", "Params.pocket4_length")
pocket4.Reversed = True
body2 = doc.addObject("PartDesign::Body", "Body001")

# Sketch on XZ plane
sketch10 = body2.newObject("Sketcher::SketchObject", "Sketch009")
sketch10.AttachmentSupport = (doc.getObject("XZ_Plane001"), [""])
sketch10.MapMode = "FlatFace"
sketch10.AttachmentOffset = App.Placement(Vector(0, 0, -0.5 * 25.4), App.Rotation())
sketch10.addGeometry([
    Part.LineSegment(Vector(-19, -11, 0), Vector(-70, 76, 0)),  # 0
    Part.LineSegment(Vector(-70, 76, 0), Vector(-70, 140, 0)),  # 1
    Part.LineSegment(Vector(-70, 140, 0), Vector(70, 140, 0)),  # 2
    Part.LineSegment(Vector(70, 140, 0), Vector(70, 76, 0)),  # 3
    Part.LineSegment(Vector(70, 76, 0), Vector(19, -11, 0)),  # 4
    Part.ArcOfCircle(Part.Circle(Vector(0, 0, 0), Vector(0, 0, 1), 22), math.radians(-150), math.radians(-30)),  # 5
], False)
sketch10.addConstraint([
    Sketcher.Constraint("Coincident", 0, 2, 1, 1),
    Sketcher.Constraint("Coincident", 1, 2, 2, 1),
    Sketcher.Constraint("Coincident", 2, 2, 3, 1),
    Sketcher.Constraint("Coincident", 3, 2, 4, 1),
    Sketcher.Constraint("Tangent", 4, 2, 5, 2),
    Sketcher.Constraint("Tangent", 5, 1, 0, 1),
    Sketcher.Constraint("Vertical", 1),
    Sketcher.Constraint("Horizontal", 2),
    Sketcher.Constraint("Vertical", 3),
    Sketcher.Constraint("Coincident", 5, 3, -1, 1),
    Sketcher.Constraint("Symmetric", 0, 2, 3, 2, -2),
    Sketcher.Constraint("DistanceX", 2, 1, 2, 2, Q("5.5 in")),
    Sketcher.Constraint("DistanceY", 1, 1, 1, 2, Q("2.5 in")),
    Sketcher.Constraint("DistanceY", -1, 1, 0, 2, Q("3 in")),
    Sketcher.Constraint("Radius", 5, Q("0.875 in")),
])
sketch10.setExpression("Constraints[11]", "Params.sketch10_width")
sketch10.setExpression("Constraints[12]", "Params.sketch10_height")
sketch10.setExpression("Constraints[14]", "Params.sketch10_radius")
pad5 = body2.newObject("PartDesign::Pad", "Pad004")
pad5.Profile = sketch10
pad5.setExpression("Length", "Params.pad5_length")
pad5.Reversed = True

# Sketch on XZ plane
sketch11 = body2.newObject("Sketcher::SketchObject", "Sketch010")
sketch11.AttachmentSupport = (doc.getObject("XZ_Plane001"), [""])
sketch11.MapMode = "FlatFace"
sketch11.AttachmentOffset = App.Placement(Vector(0, 0, -0.625 * 25.4), App.Rotation())
sketch11.addGeometry([
    Part.Circle(Vector(-66.7, 79.4, 0), Vector(0, 0, 1), 1.9),
    Part.Circle(Vector(-66.7, 136.5, 0), Vector(0, 0, 1), 1.9),
    Part.Circle(Vector(66.7, 136.5, 0), Vector(0, 0, 1), 1.9),
    Part.Circle(Vector(66.7, 79.4, 0), Vector(0, 0, 1), 1.9),
], False)
sketch11.addConstraint([
    Sketcher.Constraint("Equal", 0, 1),
    Sketcher.Constraint("Equal", 1, 2),
    Sketcher.Constraint("Equal", 2, 3),
    Sketcher.Constraint("Symmetric", 1, 3, 2, 3, -2),
    Sketcher.Constraint("Symmetric", 0, 3, 3, 3, -2),
    Sketcher.Constraint("Vertical", 0, 3, 1, 3),
    Sketcher.Constraint("Diameter", 0, Q("0.15 in")),
    Sketcher.Constraint("DistanceY", 0, 3, 1, 3, Q("2.25 in")),
    Sketcher.Constraint("DistanceX", 1, 3, 2, 3, Q("5.25 in")),
    Sketcher.Constraint("DistanceY", -1, 1, 0, 3, Q("3.125 in")),
])
sketch11.setExpression("Constraints[6]", "Params.sketch11_diameter")
pocket5 = body2.newObject("PartDesign::Pocket", "Pocket004")
pocket5.Profile = sketch11
pocket5.setExpression("Length", "Params.pocket5_length")
pocket5.Reversed = True

# Sketch on XZ plane
sketch12 = body2.newObject("Sketcher::SketchObject", "Sketch011")
sketch12.AttachmentSupport = (doc.getObject("XZ_Plane001"), [""])
sketch12.MapMode = "FlatFace"
sketch12.AttachmentOffset = App.Placement(Vector(0, 0, -0.625 * 25.4), App.Rotation())
sketch12.addGeometry([
    Part.Circle(Vector(48.9, 120.3, 0), Vector(0, 0, 1), 5.1),
    Part.Circle(Vector(57.1, 113.6, 0), Vector(0, 0, 1), 1.9),
    Part.Circle(Vector(40.7, 127, 0), Vector(0, 0, 1), 1.9),
    Part.Circle(Vector(15.3, 111.2, 0), Vector(0, 0, 1), 2.4),
], False)
sketch12.addConstraint([
    Sketcher.Constraint("Equal", 1, 2),
    Sketcher.Constraint("Diameter", 0, Q("0.4 in")),
    Sketcher.Constraint("Diameter", 1, Q("0.15 in")),
    Sketcher.Constraint("Diameter", 3, Q("0.1875 in")),
    Sketcher.Constraint("DistanceY", -1, 1, 2, 3, Q("5 in")),
    Sketcher.Constraint("DistanceX", 3, 3, 2, 3, Q("1 in")),
    Sketcher.Constraint("DistanceX", -1, 1, 1, 3, Q("2.25 in")),
    Sketcher.Constraint("DistanceY", 3, 3, 1, 3, Q("0.09375 in")),
    Sketcher.Constraint("DistanceX", -1, 1, 0, 3, 48.932509),
    Sketcher.Constraint("DistanceX", -1, 1, 2, 3, 40.715018),
    Sketcher.Constraint("DistanceY", -1, 1, 0, 3, 120.304267),
    Sketcher.Constraint("DistanceY", -1, 1, 1, 3, 113.608533),
])
sketch12.setExpression("Constraints[1]", "Params.sketch12_diameter")
sketch12.setExpression("Constraints[2]", "Params.sketch12_diameter2")
sketch12.setExpression("Constraints[3]", "Params.sketch12_diameter3")
pocket6 = body2.newObject("PartDesign::Pocket", "Pocket005")
pocket6.Profile = sketch12
pocket6.setExpression("Length", "Params.pocket6_length")
pocket6.Reversed = True

# Sketch on XZ plane
sketch13 = body2.newObject("Sketcher::SketchObject", "Sketch012")
sketch13.AttachmentSupport = (doc.getObject("XZ_Plane001"), [""])
sketch13.MapMode = "FlatFace"
sketch13.AttachmentOffset = App.Placement(Vector(0, 0, -0.625 * 25.4), App.Rotation())
sketch13.addGeometry([
    Part.Circle(Vector(0, -9.5, 0), Vector(0, 0, 1), 1.2),
    Part.Circle(Vector(0, 9.5, 0), Vector(0, 0, 1), 1.2),
    Part.Circle(Vector(-8, 0, 0), Vector(0, 0, 1), 1.2),
    Part.Circle(Vector(8, 0, 0), Vector(0, 0, 1), 1.2),
], False)
sketch13.addConstraint([
    Sketcher.Constraint("Equal", 0, 1),
    Sketcher.Constraint("Equal", 1, 2),
    Sketcher.Constraint("Equal", 2, 3),
    Sketcher.Constraint("Symmetric", 0, 3, 1, 3, -1, 1),
    Sketcher.Constraint("Symmetric", 2, 3, 3, 3, -1, 1),
    Sketcher.Constraint("PointOnObject", 0, 3, -2),
    Sketcher.Constraint("PointOnObject", 2, 3, -1),
    Sketcher.Constraint("Diameter", 0, 2.5),
    Sketcher.Constraint("DistanceY", 0, 3, -1, 1, 9.5),
    Sketcher.Constraint("DistanceX", 2, 3, -1, 1, 8.0),
])
pocket7 = body2.newObject("PartDesign::Pocket", "Pocket006")
pocket7.Profile = sketch13
pocket7.setExpression("Length", "Params.pocket7_length")
pocket7.Reversed = True

# Sketch on XZ plane
sketch14 = body2.newObject("Sketcher::SketchObject", "Sketch013")
sketch14.AttachmentSupport = (doc.getObject("XZ_Plane001"), [""])
sketch14.MapMode = "FlatFace"
sketch14.AttachmentOffset = App.Placement(Vector(0, 0, -0.625 * 25.4), App.Rotation())
sketch14.addGeometry([
    Part.Circle(Vector(0, 38, 0), Vector(0, 0, 1), 16),
    Part.Circle(Vector(-35, 64, 0), Vector(0, 0, 1), 13),
    Part.Circle(Vector(35, 64, 0), Vector(0, 0, 1), 13),
], False)
sketch14.addConstraint([
    Sketcher.Constraint("Equal", 1, 2),
    Sketcher.Constraint("Symmetric", 1, 3, 2, 3, -2),
    Sketcher.Constraint("PointOnObject", 0, 3, -2),
    Sketcher.Constraint("Diameter", 1, Q("1 in")),
    Sketcher.Constraint("Diameter", 0, Q("1.25 in")),
    Sketcher.Constraint("DistanceY", 0, 3, 1, 3, Q("1 in")),
    Sketcher.Constraint("DistanceY", -1, 1, 0, 3, Q("1.5 in")),
    Sketcher.Constraint("DistanceX", 1, 3, 2, 3, Q("2.75 in")),
])
sketch14.setExpression("Constraints[3]", "Params.sketch14_diameter")
sketch14.setExpression("Constraints[4]", "Params.sketch14_diameter2")
pocket8 = body2.newObject("PartDesign::Pocket", "Pocket007")
pocket8.Profile = sketch14
pocket8.Type = "ThroughAll"
pocket8.Reversed = True

doc.recompute()
